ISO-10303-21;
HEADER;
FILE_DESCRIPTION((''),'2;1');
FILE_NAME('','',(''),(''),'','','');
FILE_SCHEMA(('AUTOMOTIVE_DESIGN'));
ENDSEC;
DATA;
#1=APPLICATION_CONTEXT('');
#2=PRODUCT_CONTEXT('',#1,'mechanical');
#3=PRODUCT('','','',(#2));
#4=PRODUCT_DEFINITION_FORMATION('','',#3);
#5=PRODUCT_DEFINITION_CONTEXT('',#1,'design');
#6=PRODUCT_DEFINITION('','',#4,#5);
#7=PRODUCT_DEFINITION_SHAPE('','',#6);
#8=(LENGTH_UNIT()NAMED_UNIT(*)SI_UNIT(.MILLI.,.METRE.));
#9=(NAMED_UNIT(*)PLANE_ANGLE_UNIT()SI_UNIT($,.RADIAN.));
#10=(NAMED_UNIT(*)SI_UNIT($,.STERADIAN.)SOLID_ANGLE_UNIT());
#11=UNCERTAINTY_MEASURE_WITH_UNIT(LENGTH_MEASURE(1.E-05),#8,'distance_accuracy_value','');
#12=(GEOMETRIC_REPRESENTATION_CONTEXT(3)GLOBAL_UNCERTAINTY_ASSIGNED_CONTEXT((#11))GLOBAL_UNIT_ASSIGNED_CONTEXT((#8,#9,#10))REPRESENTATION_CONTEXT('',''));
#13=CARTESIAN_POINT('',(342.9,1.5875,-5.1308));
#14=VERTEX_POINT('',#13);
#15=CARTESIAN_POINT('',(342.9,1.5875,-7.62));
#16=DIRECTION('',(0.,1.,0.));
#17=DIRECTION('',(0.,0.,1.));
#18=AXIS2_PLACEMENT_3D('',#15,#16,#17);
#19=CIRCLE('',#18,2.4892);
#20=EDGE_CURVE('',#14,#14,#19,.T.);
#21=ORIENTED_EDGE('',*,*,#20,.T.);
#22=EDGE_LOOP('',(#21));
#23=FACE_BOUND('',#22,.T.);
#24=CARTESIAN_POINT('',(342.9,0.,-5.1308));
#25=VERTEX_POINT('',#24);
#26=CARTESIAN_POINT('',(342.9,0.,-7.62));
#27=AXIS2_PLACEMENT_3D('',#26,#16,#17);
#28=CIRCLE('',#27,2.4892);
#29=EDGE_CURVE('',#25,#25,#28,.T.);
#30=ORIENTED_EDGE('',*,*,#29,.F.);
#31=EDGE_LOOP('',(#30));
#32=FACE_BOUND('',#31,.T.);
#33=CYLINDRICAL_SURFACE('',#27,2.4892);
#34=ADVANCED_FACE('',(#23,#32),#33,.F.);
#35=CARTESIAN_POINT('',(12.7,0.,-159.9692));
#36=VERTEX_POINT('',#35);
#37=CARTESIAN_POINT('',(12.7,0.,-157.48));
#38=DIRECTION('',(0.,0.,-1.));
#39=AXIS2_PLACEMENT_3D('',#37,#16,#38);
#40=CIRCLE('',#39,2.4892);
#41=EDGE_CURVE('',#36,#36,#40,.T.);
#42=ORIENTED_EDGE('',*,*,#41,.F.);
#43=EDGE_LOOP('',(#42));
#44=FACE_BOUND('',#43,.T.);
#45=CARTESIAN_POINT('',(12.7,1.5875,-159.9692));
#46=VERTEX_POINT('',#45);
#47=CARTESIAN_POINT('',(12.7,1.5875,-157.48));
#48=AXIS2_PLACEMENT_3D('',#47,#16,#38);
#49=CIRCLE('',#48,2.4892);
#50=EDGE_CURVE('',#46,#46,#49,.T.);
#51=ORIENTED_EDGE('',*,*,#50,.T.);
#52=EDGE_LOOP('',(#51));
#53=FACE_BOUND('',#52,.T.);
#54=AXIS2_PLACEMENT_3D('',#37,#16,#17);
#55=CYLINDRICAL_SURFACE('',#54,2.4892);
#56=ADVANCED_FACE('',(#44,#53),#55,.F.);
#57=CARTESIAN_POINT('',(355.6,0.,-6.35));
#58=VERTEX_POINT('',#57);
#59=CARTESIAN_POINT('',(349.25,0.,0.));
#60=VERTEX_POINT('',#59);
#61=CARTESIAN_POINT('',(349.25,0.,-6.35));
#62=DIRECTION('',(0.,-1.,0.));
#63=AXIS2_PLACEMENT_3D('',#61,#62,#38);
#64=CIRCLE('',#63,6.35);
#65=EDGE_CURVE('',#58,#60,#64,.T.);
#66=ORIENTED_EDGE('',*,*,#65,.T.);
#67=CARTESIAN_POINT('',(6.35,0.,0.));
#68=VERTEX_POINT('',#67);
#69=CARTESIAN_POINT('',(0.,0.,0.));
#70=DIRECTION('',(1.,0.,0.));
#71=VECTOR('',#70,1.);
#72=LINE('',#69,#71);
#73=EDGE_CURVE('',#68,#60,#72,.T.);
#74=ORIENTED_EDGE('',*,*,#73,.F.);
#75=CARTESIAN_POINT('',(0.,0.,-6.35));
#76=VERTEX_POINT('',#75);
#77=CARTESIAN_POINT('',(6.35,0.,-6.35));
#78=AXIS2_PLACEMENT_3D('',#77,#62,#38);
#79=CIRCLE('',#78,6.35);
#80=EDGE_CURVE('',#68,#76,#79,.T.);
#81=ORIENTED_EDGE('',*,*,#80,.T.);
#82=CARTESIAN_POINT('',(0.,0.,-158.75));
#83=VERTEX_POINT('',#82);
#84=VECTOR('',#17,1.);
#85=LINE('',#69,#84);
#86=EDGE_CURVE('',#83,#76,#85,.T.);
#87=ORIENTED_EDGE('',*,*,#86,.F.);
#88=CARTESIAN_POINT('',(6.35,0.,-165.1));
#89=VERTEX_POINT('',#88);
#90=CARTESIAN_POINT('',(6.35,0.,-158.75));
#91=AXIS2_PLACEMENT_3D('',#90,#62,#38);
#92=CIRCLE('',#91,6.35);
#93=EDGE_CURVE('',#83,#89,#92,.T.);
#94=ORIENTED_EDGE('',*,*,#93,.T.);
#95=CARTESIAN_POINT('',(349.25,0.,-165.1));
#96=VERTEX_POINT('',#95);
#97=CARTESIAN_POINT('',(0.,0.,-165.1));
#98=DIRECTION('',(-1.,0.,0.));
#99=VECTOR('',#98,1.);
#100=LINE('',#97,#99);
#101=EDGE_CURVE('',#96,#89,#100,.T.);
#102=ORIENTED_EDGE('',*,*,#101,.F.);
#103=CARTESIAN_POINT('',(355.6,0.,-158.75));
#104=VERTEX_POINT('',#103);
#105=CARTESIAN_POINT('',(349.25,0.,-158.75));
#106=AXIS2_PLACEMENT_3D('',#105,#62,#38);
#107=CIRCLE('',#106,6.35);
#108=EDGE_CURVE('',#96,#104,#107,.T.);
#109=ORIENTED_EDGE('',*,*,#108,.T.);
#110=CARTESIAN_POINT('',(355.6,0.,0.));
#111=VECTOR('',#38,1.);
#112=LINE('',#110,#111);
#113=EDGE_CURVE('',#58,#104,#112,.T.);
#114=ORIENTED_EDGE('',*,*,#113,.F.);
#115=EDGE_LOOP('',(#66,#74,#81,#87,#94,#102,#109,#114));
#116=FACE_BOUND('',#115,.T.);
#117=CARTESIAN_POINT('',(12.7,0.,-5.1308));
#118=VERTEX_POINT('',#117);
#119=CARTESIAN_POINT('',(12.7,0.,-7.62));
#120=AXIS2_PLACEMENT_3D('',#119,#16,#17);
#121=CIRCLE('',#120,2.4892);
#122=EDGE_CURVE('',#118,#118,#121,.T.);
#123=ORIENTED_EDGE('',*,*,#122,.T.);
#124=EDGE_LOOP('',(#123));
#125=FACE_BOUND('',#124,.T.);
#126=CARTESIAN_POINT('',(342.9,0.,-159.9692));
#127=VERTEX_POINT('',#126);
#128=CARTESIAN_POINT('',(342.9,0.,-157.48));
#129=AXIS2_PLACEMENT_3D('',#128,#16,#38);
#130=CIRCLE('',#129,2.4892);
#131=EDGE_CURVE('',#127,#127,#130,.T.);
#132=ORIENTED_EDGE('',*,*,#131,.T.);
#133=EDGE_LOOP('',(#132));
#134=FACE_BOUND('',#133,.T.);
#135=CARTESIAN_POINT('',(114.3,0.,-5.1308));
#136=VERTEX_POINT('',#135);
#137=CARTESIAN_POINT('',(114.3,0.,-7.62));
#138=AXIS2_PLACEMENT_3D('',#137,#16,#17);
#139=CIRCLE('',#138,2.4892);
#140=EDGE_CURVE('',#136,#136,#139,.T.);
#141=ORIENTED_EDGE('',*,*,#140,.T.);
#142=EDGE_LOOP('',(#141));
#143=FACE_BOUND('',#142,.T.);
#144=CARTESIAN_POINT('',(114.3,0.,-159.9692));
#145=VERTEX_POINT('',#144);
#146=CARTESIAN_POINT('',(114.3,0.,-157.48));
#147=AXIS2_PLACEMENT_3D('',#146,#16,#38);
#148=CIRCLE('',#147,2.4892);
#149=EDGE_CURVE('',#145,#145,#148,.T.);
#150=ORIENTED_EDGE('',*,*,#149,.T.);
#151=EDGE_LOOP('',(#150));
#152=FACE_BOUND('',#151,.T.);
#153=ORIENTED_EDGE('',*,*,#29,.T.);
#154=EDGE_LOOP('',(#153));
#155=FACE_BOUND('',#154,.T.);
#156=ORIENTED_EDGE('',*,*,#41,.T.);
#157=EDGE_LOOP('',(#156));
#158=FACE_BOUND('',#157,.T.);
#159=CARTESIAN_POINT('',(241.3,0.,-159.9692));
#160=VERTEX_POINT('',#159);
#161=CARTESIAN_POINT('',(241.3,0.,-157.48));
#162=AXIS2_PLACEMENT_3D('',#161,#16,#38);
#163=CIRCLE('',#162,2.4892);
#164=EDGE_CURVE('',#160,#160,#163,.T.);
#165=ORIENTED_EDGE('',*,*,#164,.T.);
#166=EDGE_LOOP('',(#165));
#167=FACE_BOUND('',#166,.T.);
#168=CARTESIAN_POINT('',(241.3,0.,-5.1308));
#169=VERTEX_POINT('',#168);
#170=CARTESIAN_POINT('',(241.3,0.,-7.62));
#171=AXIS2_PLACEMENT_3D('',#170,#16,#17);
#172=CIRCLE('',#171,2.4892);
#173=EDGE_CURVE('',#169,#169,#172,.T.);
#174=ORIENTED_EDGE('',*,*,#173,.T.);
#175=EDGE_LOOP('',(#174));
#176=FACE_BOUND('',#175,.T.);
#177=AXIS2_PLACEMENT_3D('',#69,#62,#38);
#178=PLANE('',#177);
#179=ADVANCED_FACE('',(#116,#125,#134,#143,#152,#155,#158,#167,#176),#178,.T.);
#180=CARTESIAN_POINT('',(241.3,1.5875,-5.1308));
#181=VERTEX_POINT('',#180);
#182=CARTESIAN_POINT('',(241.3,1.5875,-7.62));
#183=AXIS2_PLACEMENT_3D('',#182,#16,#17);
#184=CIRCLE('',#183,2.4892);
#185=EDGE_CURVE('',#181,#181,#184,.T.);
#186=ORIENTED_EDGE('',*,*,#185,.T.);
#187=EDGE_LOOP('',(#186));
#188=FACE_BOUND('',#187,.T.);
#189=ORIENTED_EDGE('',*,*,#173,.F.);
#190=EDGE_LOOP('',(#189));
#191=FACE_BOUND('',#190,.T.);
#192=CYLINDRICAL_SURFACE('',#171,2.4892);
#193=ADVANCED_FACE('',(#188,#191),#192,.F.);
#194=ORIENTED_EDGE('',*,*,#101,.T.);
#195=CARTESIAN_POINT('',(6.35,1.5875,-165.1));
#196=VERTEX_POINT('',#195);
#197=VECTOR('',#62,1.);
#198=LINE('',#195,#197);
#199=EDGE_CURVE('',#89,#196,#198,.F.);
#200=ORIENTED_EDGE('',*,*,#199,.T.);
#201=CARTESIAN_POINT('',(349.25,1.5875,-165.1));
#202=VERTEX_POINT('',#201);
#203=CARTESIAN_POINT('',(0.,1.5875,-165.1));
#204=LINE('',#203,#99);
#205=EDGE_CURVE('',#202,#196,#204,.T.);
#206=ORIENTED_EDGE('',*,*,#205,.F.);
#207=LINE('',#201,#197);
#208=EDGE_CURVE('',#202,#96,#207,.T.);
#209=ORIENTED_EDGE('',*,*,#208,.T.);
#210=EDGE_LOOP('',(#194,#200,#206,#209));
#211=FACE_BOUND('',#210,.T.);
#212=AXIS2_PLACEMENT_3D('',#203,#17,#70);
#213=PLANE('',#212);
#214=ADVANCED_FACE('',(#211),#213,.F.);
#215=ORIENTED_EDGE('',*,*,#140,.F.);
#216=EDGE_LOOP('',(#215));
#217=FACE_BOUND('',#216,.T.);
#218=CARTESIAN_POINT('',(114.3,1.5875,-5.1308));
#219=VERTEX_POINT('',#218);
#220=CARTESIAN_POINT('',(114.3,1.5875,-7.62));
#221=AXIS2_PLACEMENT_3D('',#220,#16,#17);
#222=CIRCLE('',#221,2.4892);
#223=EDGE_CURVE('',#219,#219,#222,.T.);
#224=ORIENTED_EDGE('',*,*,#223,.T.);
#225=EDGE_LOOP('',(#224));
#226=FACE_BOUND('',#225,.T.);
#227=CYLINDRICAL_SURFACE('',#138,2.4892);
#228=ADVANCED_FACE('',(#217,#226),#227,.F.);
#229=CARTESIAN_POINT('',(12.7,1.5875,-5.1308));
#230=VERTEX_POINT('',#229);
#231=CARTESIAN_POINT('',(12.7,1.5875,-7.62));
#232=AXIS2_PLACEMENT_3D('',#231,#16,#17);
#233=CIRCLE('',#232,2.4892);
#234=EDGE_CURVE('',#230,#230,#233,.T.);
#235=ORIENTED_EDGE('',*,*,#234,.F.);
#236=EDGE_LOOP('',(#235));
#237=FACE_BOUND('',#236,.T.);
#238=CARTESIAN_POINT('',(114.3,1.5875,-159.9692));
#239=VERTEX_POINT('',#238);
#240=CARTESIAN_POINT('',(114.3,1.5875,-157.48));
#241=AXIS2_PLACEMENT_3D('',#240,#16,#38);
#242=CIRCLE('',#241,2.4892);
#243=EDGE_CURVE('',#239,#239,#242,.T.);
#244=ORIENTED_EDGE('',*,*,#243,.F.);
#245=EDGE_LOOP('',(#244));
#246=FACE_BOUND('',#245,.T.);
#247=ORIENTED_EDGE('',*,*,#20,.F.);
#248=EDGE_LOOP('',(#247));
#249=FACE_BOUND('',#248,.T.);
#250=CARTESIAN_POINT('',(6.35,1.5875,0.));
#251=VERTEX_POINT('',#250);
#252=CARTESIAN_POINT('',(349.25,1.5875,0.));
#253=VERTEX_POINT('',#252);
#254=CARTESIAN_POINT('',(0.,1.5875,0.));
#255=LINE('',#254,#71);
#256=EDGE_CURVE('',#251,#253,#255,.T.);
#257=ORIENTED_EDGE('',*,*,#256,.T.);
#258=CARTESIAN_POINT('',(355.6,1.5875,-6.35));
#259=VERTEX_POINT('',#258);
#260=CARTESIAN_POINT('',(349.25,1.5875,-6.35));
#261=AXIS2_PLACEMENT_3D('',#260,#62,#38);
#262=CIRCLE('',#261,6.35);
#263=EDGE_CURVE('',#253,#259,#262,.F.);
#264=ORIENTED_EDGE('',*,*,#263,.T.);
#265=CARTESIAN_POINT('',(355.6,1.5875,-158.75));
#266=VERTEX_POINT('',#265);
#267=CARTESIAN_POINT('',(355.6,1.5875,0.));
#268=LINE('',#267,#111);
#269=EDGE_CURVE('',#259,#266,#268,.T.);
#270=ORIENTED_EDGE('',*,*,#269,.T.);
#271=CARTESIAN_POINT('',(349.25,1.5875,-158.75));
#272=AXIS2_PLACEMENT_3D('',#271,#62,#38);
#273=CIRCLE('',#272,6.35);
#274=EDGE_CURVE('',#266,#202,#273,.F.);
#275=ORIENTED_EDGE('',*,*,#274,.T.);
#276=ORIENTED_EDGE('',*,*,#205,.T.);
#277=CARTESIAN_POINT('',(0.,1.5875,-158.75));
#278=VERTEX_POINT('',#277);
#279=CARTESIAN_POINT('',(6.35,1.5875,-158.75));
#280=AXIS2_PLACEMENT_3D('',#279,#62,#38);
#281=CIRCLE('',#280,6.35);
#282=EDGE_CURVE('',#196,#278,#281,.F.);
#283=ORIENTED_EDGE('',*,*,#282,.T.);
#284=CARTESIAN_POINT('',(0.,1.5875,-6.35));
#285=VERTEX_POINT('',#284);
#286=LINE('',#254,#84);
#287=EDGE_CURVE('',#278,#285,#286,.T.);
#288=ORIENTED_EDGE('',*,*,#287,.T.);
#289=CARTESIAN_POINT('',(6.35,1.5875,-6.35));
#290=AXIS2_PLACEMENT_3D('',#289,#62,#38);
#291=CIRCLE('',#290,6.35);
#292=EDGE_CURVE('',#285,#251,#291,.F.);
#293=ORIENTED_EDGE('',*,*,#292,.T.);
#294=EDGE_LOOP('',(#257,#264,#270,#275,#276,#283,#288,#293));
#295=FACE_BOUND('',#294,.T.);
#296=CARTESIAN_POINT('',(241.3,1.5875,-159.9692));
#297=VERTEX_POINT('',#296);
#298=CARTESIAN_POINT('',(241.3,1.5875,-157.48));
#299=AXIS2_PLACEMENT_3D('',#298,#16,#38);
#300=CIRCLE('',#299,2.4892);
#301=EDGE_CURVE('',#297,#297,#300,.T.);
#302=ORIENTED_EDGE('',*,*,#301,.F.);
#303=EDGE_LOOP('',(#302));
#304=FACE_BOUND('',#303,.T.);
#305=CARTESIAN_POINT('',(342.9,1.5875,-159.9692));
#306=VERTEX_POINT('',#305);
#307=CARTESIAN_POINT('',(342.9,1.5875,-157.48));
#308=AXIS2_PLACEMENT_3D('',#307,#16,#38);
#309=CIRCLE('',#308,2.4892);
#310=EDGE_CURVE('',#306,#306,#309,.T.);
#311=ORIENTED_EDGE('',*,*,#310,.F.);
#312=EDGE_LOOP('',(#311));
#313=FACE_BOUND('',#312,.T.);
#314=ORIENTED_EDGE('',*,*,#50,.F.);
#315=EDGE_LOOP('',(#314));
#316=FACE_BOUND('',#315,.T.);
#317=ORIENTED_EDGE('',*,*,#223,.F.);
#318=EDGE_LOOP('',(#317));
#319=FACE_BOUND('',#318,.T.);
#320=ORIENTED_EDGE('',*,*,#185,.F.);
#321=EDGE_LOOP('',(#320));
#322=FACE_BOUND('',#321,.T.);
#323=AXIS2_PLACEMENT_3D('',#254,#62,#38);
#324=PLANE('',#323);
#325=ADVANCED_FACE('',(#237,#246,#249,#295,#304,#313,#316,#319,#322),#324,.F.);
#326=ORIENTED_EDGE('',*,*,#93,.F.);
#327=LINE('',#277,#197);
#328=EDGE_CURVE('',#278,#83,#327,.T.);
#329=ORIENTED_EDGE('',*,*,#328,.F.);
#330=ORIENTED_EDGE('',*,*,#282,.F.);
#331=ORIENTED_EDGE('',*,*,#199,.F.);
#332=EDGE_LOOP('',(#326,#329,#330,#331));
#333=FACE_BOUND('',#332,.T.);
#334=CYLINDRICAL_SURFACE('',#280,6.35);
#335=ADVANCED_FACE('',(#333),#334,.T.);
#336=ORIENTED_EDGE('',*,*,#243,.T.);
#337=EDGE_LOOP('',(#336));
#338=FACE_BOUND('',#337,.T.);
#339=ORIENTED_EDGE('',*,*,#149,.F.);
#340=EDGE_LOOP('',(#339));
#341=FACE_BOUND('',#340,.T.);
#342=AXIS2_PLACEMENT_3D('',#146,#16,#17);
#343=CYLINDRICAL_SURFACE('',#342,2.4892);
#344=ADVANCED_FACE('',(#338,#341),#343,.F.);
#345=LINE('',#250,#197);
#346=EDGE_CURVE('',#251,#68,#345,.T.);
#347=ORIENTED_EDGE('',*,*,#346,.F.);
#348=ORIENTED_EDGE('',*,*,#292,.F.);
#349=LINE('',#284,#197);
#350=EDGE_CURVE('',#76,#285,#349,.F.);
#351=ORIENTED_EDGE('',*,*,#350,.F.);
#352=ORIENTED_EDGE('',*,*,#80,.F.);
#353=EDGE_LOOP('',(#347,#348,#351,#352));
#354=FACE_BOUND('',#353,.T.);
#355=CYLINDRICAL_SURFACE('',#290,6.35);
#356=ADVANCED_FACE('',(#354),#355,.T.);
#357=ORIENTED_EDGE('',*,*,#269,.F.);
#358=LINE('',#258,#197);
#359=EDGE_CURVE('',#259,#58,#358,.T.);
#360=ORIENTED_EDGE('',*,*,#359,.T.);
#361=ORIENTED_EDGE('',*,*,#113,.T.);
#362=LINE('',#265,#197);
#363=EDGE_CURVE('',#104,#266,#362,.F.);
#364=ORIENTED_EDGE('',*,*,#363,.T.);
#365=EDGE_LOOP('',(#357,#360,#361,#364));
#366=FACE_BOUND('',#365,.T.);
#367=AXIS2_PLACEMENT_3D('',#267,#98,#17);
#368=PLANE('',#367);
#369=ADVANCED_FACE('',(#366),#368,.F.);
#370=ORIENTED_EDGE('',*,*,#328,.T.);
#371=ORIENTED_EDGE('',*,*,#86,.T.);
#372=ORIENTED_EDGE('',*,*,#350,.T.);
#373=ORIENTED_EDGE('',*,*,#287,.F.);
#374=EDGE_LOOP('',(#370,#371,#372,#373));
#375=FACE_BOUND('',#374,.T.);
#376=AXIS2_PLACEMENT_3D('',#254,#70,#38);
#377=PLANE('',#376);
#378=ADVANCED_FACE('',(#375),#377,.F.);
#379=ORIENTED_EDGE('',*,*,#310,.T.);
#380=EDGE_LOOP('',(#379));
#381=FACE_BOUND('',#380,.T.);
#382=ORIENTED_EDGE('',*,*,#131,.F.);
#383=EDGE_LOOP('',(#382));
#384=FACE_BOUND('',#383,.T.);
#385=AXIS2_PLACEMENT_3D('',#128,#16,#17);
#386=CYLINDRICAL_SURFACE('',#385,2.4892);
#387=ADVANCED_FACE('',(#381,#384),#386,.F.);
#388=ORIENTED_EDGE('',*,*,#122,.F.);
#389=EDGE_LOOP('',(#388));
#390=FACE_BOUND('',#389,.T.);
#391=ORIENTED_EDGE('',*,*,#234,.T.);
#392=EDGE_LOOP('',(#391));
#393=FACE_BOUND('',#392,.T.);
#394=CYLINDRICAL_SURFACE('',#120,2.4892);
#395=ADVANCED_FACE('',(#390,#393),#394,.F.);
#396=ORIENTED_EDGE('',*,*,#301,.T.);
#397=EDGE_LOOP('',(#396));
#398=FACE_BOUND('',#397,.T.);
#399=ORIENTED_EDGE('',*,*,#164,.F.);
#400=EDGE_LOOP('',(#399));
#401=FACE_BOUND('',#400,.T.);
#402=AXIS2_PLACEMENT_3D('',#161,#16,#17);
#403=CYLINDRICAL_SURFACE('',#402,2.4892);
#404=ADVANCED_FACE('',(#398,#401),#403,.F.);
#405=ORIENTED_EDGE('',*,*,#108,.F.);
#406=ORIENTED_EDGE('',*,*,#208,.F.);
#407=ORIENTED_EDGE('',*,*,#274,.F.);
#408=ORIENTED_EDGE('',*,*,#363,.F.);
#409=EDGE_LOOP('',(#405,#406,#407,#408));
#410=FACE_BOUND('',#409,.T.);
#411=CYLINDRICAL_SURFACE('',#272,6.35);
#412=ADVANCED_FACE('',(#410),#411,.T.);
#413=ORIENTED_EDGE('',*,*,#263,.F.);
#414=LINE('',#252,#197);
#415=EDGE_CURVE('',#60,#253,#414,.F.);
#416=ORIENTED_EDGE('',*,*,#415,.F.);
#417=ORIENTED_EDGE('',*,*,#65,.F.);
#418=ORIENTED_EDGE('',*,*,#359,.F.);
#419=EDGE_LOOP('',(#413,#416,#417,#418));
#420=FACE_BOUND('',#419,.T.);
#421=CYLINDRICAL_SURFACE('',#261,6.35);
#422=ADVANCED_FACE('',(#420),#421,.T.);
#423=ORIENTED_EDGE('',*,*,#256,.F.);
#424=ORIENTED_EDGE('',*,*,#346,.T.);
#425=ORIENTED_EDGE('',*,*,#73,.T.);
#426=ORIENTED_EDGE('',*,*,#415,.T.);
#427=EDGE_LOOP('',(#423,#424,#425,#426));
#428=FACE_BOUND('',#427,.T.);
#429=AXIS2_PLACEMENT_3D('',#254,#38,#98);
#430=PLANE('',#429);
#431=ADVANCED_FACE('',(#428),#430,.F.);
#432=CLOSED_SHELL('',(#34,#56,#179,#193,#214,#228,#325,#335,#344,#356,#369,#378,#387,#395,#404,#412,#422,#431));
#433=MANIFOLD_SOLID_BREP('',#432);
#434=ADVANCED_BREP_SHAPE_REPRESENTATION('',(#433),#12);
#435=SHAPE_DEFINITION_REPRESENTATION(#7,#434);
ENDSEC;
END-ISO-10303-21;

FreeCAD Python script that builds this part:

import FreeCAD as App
import Part
import Sketcher
from FreeCAD import Vector
Q = App.Units.Quantity


def edges_at(feature, points):
    """Names of the edges that pass closest to the given points."""
    edges = feature.Shape.Edges
    near = lambda p: min(range(len(edges)), key=lambda i: edges[i].distToShape(Part.Vertex(*p))[0])
    return sorted({f"Edge{near(p) + 1}" for p in points})

doc = App.newDocument("Part")
body = doc.addObject("PartDesign::Body", "Body")

sketch1 = body.newObject("Sketcher::SketchObject", "Sketch")
sketch1.AttachmentSupport = (doc.getObject("XZ_Plane"), [""])
sketch1.MapMode = "FlatFace"
sketch1.addGeometry([
    Part.LineSegment(Vector(0, -165, 0), Vector(0, 0, 0)),
    Part.LineSegment(Vector(0, 0, 0), Vector(356, 0, 0)),
    Part.LineSegment(Vector(356, 0, 0), Vector(356, -165, 0)),
    Part.LineSegment(Vector(356, -165, 0), Vector(0, -165, 0)),
], False)
sketch1.addConstraint([
    Sketcher.Constraint("Coincident", 0, 2, 1, 1),
    Sketcher.Constraint("Coincident", 1, 2, 2, 1),
    Sketcher.Constraint("Coincident", 2, 2, 3, 1),
    Sketcher.Constraint("Coincident", 3, 2, 0, 1),
    Sketcher.Constraint("Vertical", 0),
    Sketcher.Constraint("Horizontal", 1),
    Sketcher.Constraint("Vertical", 2),
    Sketcher.Constraint("Horizontal", 3),
    Sketcher.Constraint("Coincident", 0, 2, -1, 1),
    Sketcher.Constraint("DistanceX", 1, 1, 1, 2, Q("14 in")),
    Sketcher.Constraint("DistanceY", 0, 1, 0, 2, Q("6.5 in")),
])
pad1 = body.newObject("PartDesign::Pad", "Pad")
pad1.Profile = sketch1
pad1.Length = Q("0.0625 in")
pad1.Reversed = True
doc.recompute()

fillet = body.newObject("PartDesign::Fillet", "Fillet")
fillet.Base = (pad1, edges_at(pad1, [
    (0, 0.794, -165.1),
    (355.6, 0.794, -165.1),
    (355.6, 0.794, 0),
    (0, 0.794, 0),
]))
fillet.Radius = Q("0.25 in")

sketch2 = body.newObject("Sketcher::SketchObject", "Sketch001")
sketch2.AttachmentSupport = (doc.getObject("XZ_Plane"), [""])
sketch2.MapMode = "FlatFace"
sketch2.AttachmentOffset = App.Placement(Vector(0, 0, -0.0625 * 25.4), App.Rotation())
sketch2.addGeometry([
    Part.Circle(Vector(12.7, -7.6, 0), Vector(0, 0, 1), 2.5),
    Part.Circle(Vector(342.9, -7.6, 0), Vector(0, 0, 1), 2.5),
    Part.Circle(Vector(241.3, -7.6, 0), Vector(0, 0, 1), 2.5),
    Part.Circle(Vector(114.3, -7.6, 0), Vector(0, 0, 1), 2.5),
    Part.Circle(Vector(114.3, -157.5, 0), Vector(0, 0, 1), 2.5),
    Part.Circle(Vector(342.9, -157.5, 0), Vector(0, 0, 1), 2.5),
    Part.Circle(Vector(12.7, -157.5, 0), Vector(0, 0, 1), 2.5),
    Part.Circle(Vector(241.3, -157.5, 0), Vector(0, 0, 1), 2.5),
], False)
sketch2.addConstraint([
    Sketcher.Constraint("Equal", 0, 1),
    Sketcher.Constraint("Equal", 1, 2),
    Sketcher.Constraint("Equal", 2, 3),
    Sketcher.Constraint("Equal", 3, 4),
    Sketcher.Constraint("Equal", 4, 5),
    Sketcher.Constraint("Equal", 5, 6),
    Sketcher.Constraint("Equal", 6, 7),
    Sketcher.Constraint("Horizontal", 0, 3, 1, 3),
    Sketcher.Constraint("Horizontal", 1, 3, 2, 3),
    Sketcher.Constraint("Horizontal", 2, 3, 3, 3),
    Sketcher.Constraint("Horizontal", 4, 3, 5, 3),
    Sketcher.Constraint("Horizontal", 5, 3, 6, 3),
    Sketcher.Constraint("Horizontal", 6, 3, 7, 3),
    Sketcher.Constraint("Vertical", 3, 3, 4, 3),
    Sketcher.Constraint("Vertical", 1, 3, 5, 3),
    Sketcher.Constraint("Vertical", 0, 3, 6, 3),
    Sketcher.Constraint("Vertical", 2, 3, 7, 3),
    Sketcher.Constraint("Diameter", 0, Q("0.196 in")),
    Sketcher.Constraint("DistanceX", 0, 3, 1, 3, Q("13 in")),
    Sketcher.Constraint("DistanceX", 2, 3, 1, 3, Q("4 in")),
    Sketcher.Constraint("DistanceX", 0, 3, 3, 3, Q("4 in")),
    Sketcher.Constraint("DistanceX", -1, 1, 0, 3, Q("0.5 in")),
    Sketcher.Constraint("DistanceY", 0, 3, -1, 1, Q("0.3 in")),
    Sketcher.Constraint("DistanceY", 4, 3, -1, 1, Q("6.2 in")),
])
pocket1 = body.newObject("PartDesign::Pocket", "Pocket")
pocket1.Profile = sketch2
pocket1.Type = "ThroughAll"
pocket1.Reversed = True

doc.recompute()
